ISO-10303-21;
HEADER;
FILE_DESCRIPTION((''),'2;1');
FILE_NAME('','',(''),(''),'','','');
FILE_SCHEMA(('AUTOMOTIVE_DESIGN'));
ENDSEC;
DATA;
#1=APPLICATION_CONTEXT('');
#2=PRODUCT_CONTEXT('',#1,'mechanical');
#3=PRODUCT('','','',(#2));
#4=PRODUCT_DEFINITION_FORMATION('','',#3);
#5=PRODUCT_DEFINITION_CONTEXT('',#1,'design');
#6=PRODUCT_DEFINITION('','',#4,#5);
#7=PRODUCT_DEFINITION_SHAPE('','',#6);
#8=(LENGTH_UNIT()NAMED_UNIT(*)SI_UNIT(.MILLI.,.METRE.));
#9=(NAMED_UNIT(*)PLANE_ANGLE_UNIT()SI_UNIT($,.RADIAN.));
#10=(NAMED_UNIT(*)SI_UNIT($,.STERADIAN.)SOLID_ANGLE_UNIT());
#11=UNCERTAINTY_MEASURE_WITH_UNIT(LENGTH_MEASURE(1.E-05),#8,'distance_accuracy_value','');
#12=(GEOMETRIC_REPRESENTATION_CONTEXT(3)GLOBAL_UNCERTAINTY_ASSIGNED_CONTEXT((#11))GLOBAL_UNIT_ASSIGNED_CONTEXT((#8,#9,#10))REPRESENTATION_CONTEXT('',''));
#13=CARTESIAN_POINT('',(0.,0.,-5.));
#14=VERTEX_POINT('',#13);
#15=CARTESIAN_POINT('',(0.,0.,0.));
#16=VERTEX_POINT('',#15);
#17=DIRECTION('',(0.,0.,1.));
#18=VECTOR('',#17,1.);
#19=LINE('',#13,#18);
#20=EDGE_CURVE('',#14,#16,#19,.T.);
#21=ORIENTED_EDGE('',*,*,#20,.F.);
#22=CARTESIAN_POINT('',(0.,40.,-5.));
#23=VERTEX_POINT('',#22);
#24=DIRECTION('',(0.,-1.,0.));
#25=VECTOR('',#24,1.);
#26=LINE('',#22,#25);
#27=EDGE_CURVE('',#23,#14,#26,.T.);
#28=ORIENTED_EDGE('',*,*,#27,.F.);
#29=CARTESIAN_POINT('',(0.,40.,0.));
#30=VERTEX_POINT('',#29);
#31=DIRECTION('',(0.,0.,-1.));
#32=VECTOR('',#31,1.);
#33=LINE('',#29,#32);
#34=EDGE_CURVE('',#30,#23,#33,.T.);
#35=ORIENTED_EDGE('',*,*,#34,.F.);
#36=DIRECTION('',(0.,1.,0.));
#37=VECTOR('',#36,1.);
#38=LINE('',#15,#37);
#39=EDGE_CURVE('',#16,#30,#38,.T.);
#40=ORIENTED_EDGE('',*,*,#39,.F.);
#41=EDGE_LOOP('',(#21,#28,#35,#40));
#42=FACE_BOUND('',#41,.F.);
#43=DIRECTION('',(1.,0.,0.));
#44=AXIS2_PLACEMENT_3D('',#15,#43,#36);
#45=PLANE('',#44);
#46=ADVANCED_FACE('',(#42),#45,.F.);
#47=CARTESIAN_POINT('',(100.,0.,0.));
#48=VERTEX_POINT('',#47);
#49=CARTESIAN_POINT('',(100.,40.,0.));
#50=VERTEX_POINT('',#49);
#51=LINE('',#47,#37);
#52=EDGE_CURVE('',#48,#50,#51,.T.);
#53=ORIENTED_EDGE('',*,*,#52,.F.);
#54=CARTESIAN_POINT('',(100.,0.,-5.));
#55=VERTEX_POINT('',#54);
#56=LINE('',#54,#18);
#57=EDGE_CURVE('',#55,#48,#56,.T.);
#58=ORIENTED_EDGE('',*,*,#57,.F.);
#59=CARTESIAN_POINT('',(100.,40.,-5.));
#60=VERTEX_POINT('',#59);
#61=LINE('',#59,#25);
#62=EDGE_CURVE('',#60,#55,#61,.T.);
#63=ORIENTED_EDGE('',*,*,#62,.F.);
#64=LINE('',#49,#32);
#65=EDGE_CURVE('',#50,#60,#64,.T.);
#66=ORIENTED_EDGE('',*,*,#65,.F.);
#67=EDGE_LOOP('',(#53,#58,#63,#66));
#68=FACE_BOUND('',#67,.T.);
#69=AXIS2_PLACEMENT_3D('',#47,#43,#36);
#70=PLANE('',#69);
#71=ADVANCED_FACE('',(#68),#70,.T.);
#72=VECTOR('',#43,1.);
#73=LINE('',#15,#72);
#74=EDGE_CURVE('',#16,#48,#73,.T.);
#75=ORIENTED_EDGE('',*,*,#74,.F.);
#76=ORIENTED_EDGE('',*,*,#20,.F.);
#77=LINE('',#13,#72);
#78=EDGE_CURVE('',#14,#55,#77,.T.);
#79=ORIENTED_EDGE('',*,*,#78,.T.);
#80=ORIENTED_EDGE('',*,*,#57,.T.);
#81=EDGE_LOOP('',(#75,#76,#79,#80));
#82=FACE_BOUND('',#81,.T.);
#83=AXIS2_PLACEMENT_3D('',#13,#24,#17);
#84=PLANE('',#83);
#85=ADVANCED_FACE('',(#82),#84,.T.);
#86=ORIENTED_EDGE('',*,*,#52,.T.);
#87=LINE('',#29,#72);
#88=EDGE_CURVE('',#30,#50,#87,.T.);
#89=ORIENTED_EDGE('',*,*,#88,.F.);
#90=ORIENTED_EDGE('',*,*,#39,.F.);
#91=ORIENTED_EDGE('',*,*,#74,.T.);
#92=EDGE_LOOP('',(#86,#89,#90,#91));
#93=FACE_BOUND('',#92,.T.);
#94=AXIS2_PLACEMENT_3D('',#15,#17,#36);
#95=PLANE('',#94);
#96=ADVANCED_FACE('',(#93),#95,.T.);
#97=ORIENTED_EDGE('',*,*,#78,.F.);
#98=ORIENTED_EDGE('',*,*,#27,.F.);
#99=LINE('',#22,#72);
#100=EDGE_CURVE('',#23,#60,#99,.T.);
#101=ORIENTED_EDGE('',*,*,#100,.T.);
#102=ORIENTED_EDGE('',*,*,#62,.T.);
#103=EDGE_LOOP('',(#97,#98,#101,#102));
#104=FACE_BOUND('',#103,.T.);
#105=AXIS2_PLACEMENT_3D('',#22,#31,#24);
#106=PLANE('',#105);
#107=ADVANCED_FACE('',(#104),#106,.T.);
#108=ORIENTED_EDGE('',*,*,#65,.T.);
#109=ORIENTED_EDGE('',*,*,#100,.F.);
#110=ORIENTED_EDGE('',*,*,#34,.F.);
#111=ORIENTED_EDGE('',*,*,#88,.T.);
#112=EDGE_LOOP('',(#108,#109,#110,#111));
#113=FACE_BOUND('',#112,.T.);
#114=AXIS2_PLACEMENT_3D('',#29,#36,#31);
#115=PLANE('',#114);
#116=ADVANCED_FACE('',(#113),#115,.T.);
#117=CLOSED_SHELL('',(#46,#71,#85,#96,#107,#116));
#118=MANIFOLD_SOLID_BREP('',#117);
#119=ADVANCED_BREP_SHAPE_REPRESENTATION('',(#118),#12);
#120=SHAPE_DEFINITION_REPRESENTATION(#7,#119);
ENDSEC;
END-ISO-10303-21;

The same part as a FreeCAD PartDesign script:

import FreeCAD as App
import Part
import Sketcher
Q = App.Units.Quantity

doc = App.newDocument("Part")
body = doc.addObject("PartDesign::Body", "Body")

# Sketch on YZ plane
sketch1 = body.newObject("Sketcher::SketchObject", "Sketch")
sketch1.AttachmentSupport = (doc.getObject("YZ_Plane"), [""])
sketch1.MapMode = "FlatFace"
sketch1.addGeometry([
    Part.LineSegment(App.Vector(40, 0, 0), App.Vector(0, 0, 0)),
    Part.LineSegment(App.Vector(0, 0, 0), App.Vector(0, -5, 0)),
    Part.LineSegment(App.Vector(0, -5, 0), App.Vector(40, -5, 0)),
    Part.LineSegment(App.Vector(40, -5, 0), App.Vector(40, 0, 0)),
], False)
sketch1.addConstraint([
    Sketcher.Constraint("Coincident", 0, 2, 1, 1),
    Sketcher.Constraint("Coincident", 1, 2, 2, 1),
    Sketcher.Constraint("Coincident", 2, 2, 3, 1),
    Sketcher.Constraint("Coincident", 3, 2, 0, 1),
    Sketcher.Constraint("Horizontal", 0),
    Sketcher.Constraint("Vertical", 1),
    Sketcher.Constraint("Horizontal", 2),
    Sketcher.Constraint("Vertical", 3),
    Sketcher.Constraint("Coincident", 0, 2, -1, 1),
    Sketcher.Constraint("DistanceX", 0, 2, 0, 1, Q("40 mm")),
    Sketcher.Constraint("DistanceY", 1, 2, 1, 1, Q("5 mm")),
])
pad1 = body.newObject("PartDesign::Pad", "Pad")
pad1.Profile = sketch1
pad1.Length = 100

doc.recompute()
